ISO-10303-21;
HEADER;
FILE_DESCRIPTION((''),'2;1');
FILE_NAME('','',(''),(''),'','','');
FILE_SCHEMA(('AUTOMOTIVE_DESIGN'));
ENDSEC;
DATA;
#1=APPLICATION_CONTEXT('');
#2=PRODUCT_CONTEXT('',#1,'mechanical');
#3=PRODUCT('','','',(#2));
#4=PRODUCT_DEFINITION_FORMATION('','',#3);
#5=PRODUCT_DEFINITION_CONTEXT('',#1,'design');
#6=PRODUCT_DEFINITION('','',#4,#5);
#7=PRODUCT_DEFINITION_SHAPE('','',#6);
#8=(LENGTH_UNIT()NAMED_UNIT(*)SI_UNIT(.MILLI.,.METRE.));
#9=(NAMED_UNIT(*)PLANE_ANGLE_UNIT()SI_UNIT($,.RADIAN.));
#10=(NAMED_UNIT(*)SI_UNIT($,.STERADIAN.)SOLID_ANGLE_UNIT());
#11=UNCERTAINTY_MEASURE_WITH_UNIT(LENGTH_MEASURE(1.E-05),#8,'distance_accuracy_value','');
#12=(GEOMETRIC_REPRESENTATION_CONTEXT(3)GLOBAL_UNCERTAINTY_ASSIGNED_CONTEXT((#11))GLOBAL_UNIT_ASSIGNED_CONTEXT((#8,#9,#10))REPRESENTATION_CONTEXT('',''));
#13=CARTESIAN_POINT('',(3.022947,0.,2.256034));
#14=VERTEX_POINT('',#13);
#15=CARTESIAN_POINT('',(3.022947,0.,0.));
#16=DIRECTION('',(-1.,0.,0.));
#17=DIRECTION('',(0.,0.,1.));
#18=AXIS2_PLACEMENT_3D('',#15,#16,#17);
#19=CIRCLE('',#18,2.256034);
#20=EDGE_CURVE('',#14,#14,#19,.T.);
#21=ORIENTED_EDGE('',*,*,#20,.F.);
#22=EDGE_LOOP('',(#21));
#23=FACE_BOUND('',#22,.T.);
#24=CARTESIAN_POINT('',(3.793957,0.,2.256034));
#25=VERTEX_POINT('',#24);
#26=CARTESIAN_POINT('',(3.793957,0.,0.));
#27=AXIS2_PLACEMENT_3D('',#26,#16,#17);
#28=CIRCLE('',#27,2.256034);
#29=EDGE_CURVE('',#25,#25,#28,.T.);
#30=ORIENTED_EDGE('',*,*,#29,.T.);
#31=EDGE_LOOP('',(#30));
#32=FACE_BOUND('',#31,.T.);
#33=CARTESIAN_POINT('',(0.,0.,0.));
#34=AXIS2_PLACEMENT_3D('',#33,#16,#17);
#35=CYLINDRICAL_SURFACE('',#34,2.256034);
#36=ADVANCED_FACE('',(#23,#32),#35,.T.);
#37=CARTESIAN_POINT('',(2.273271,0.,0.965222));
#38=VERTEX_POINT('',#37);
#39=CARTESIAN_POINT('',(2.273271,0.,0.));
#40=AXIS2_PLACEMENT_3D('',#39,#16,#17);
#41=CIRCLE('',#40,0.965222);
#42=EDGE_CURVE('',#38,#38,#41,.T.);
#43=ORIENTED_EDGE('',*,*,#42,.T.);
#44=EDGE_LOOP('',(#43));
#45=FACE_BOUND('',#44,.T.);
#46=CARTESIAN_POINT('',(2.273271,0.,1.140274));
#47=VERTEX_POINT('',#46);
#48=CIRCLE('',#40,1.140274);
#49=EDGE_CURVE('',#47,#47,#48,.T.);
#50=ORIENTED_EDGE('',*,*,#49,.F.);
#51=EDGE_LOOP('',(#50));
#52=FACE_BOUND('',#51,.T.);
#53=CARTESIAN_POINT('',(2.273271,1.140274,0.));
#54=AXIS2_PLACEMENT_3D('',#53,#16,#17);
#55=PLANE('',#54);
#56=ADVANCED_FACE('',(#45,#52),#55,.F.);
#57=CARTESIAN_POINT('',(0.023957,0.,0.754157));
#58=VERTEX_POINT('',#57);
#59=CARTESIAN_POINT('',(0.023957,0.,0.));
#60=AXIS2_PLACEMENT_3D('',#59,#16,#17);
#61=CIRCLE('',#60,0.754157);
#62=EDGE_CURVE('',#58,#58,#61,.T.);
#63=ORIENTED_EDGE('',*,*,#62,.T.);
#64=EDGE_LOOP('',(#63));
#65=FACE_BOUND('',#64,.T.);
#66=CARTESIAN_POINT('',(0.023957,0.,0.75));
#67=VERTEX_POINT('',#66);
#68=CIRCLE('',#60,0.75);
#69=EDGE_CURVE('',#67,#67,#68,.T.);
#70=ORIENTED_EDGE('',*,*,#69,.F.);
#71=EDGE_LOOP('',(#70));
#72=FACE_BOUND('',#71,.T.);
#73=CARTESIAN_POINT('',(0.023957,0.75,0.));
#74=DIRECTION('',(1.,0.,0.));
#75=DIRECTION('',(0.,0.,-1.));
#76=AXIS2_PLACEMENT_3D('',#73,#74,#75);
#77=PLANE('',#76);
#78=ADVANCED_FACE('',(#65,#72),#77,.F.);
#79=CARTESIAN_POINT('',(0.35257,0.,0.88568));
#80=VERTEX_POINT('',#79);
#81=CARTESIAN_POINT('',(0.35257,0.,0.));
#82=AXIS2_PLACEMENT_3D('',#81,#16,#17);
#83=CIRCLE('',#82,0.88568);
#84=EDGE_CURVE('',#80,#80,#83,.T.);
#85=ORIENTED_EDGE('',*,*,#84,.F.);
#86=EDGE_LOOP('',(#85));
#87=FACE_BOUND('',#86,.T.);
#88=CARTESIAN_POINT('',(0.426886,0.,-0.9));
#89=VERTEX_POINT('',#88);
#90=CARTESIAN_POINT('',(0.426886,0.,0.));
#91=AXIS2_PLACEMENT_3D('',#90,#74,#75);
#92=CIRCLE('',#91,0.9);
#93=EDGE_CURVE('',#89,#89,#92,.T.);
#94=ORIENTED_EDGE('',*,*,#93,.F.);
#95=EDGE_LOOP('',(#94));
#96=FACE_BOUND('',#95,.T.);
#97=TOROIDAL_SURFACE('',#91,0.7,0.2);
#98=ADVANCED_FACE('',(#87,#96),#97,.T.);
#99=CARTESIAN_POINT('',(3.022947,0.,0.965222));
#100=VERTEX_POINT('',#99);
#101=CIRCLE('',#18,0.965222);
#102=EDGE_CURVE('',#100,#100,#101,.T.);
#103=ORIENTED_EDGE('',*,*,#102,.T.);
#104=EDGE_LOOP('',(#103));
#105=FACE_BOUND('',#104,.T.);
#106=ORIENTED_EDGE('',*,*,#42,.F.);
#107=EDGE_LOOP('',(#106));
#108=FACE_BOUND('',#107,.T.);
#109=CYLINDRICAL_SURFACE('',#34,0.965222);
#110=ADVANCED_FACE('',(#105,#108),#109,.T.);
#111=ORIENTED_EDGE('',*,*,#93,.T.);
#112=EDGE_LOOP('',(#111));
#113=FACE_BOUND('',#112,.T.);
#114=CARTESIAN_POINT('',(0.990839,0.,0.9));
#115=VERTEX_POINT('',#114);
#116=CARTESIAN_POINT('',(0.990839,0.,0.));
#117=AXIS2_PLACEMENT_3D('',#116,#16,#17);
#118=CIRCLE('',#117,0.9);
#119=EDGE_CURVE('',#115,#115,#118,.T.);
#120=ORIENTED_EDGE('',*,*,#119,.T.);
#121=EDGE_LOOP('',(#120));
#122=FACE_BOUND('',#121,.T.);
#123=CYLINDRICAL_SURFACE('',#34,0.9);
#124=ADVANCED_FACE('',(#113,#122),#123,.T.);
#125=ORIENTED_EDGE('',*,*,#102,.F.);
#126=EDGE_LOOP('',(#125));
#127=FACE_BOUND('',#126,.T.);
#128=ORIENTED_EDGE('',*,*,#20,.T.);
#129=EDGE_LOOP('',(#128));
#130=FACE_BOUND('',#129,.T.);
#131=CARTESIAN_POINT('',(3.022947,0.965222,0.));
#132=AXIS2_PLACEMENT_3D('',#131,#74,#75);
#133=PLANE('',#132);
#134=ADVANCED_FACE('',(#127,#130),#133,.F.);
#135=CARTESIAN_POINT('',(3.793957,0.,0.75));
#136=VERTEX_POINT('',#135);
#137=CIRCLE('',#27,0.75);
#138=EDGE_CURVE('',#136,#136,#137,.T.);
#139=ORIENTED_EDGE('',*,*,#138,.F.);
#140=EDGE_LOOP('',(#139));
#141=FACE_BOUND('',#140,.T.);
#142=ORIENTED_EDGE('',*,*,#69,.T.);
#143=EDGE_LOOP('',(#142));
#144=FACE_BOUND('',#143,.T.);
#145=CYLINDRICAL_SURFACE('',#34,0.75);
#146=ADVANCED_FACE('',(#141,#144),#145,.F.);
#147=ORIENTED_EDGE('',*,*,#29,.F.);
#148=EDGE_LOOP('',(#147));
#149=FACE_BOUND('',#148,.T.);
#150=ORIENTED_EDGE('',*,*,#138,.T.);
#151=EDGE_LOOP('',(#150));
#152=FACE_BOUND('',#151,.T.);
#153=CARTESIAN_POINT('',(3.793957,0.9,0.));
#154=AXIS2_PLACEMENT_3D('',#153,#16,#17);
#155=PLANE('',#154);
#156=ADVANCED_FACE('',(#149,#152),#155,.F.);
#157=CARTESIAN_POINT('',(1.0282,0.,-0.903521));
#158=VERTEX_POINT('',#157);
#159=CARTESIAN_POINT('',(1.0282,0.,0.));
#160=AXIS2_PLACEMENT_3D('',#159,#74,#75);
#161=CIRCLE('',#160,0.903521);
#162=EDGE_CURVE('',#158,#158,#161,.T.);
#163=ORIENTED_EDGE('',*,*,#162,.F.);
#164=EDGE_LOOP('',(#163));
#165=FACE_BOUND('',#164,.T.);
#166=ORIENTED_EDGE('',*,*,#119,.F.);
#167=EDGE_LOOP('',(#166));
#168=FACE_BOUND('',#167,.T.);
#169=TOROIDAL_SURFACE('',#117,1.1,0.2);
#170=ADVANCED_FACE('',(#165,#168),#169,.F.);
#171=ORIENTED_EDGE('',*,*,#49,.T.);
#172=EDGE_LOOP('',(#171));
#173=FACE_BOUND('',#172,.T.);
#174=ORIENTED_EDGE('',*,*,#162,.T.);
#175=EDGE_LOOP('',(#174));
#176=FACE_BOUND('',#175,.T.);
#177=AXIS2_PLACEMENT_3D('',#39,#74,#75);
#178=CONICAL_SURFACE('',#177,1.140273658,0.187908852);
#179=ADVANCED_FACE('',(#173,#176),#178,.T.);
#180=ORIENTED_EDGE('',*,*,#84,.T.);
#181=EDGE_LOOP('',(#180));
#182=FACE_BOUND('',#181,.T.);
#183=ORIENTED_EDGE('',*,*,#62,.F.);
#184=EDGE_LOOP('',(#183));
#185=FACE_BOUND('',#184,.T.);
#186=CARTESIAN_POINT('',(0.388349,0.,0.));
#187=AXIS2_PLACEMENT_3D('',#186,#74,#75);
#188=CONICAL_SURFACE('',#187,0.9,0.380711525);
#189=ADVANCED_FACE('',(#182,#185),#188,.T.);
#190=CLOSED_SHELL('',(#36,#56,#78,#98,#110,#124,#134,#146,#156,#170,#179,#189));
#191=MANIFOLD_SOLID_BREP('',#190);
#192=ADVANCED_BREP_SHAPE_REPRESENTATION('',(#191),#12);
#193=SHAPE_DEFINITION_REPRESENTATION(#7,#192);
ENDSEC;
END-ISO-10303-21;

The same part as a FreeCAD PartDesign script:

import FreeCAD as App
import Part
import Sketcher


def edges_at(feature, points):
    """Names of the edges that pass closest to the given points."""
    edges = feature.Shape.Edges
    near = lambda p: min(range(len(edges)), key=lambda i: edges[i].distToShape(Part.Vertex(*p))[0])
    return sorted({f"Edge{near(p) + 1}" for p in points})

doc = App.newDocument("Part")
body = doc.addObject("PartDesign::Body", "Body")

sketch1 = doc.addObject("Sketcher::SketchObject", "Sketch")
body.addObject(sketch1)
sketch1.AttachmentSupport = (doc.XY_Plane, [""])
sketch1.MapMode = "FlatFace"
sketch1.addGeometry([
    Part.LineSegment(App.Vector(0.024, 0.7542, 0), App.Vector(0.024, 0.75, 0)),
    Part.LineSegment(App.Vector(0.024, 0.75, 0), App.Vector(3.794, 0.75, 0)),
    Part.LineSegment(App.Vector(3.794, 0.75, 0), App.Vector(3.794, 2.256, 0)),
    Part.LineSegment(App.Vector(3.794, 2.256, 0), App.Vector(3.0229, 2.256, 0)),
    Part.LineSegment(App.Vector(3.0229, 2.256, 0), App.Vector(3.0229, 0.9652, 0)),
    Part.LineSegment(App.Vector(3.0229, 0.9652, 0), App.Vector(2.2733, 0.9652, 0)),
    Part.LineSegment(App.Vector(2.2733, 0.9652, 0), App.Vector(2.2733, 1.1403, 0)),
    Part.LineSegment(App.Vector(2.2733, 1.1403, 0), App.Vector(1.0097, 0.9, 0)),
    Part.LineSegment(App.Vector(1.0097, 0.9, 0), App.Vector(0.3883, 0.9, 0)),
    Part.LineSegment(App.Vector(0.3883, 0.9, 0), App.Vector(0.024, 0.7542, 0)),
], False)
sketch1.addConstraint([
    Sketcher.Constraint("Coincident", 0, 2, 1, 1),
    Sketcher.Constraint("Coincident", 1, 2, 2, 1),
    Sketcher.Constraint("Coincident", 2, 2, 3, 1),
    Sketcher.Constraint("Coincident", 3, 2, 4, 1),
    Sketcher.Constraint("Coincident", 4, 2, 5, 1),
    Sketcher.Constraint("Coincident", 5, 2, 6, 1),
    Sketcher.Constraint("Coincident", 6, 2, 7, 1),
    Sketcher.Constraint("Coincident", 7, 2, 8, 1),
    Sketcher.Constraint("Coincident", 8, 2, 9, 1),
    Sketcher.Constraint("Coincident", 9, 2, 0, 1),
    Sketcher.Constraint("Vertical", 0),
    Sketcher.Constraint("Horizontal", 1),
    Sketcher.Constraint("Vertical", 2),
    Sketcher.Constraint("Horizontal", 3),
    Sketcher.Constraint("Vertical", 4),
    Sketcher.Constraint("Horizontal", 5),
    Sketcher.Constraint("Vertical", 6),
    Sketcher.Constraint("Horizontal", 8),
    Sketcher.Constraint("DistanceX", 1, 1, 1, 2, 3.77),
    Sketcher.Constraint("DistanceY", -1, 1, 7, 2, 0.9),
    Sketcher.Constraint("DistanceY", -1, 1, 0, 2, 0.75),
    Sketcher.Constraint("DistanceX", 3, 2, 3, 1, 0.771011),
    Sketcher.Constraint("DistanceY", 4, 2, 4, 1, 1.290812),
    Sketcher.Constraint("DistanceY", 6, 1, 6, 2, 0.175051),
    Sketcher.Constraint("DistanceX", 5, 2, 5, 1, 0.749676),
    Sketcher.Constraint("DistanceX", 8, 2, 8, 1, 0.621336),
    Sketcher.Constraint("DistanceY", 0, 2, 0, 1, 0.004157),
    Sketcher.Constraint("DistanceY", 2, 1, 2, 2, 1.506034),
    Sketcher.Constraint("DistanceX", -1, 1, 5, 2, 2.273271),
    Sketcher.Constraint("DistanceX", -1, 1, 8, 2, 0.388349),
])
revolution = doc.addObject("PartDesign::Revolution", "Revolution")
body.addObject(revolution)
revolution.Profile = sketch1
revolution.ReferenceAxis = (sketch1, ["H_Axis"])
revolution.Angle = 360
doc.recompute()

fillet = doc.addObject("PartDesign::Fillet", "Fillet")
body.addObject(fillet)
fillet.Base = (revolution, edges_at(revolution, [(1.01, 0, -0.9), (0.388, 0, -0.9)]))
fillet.Radius = 0.2

doc.recompute()
